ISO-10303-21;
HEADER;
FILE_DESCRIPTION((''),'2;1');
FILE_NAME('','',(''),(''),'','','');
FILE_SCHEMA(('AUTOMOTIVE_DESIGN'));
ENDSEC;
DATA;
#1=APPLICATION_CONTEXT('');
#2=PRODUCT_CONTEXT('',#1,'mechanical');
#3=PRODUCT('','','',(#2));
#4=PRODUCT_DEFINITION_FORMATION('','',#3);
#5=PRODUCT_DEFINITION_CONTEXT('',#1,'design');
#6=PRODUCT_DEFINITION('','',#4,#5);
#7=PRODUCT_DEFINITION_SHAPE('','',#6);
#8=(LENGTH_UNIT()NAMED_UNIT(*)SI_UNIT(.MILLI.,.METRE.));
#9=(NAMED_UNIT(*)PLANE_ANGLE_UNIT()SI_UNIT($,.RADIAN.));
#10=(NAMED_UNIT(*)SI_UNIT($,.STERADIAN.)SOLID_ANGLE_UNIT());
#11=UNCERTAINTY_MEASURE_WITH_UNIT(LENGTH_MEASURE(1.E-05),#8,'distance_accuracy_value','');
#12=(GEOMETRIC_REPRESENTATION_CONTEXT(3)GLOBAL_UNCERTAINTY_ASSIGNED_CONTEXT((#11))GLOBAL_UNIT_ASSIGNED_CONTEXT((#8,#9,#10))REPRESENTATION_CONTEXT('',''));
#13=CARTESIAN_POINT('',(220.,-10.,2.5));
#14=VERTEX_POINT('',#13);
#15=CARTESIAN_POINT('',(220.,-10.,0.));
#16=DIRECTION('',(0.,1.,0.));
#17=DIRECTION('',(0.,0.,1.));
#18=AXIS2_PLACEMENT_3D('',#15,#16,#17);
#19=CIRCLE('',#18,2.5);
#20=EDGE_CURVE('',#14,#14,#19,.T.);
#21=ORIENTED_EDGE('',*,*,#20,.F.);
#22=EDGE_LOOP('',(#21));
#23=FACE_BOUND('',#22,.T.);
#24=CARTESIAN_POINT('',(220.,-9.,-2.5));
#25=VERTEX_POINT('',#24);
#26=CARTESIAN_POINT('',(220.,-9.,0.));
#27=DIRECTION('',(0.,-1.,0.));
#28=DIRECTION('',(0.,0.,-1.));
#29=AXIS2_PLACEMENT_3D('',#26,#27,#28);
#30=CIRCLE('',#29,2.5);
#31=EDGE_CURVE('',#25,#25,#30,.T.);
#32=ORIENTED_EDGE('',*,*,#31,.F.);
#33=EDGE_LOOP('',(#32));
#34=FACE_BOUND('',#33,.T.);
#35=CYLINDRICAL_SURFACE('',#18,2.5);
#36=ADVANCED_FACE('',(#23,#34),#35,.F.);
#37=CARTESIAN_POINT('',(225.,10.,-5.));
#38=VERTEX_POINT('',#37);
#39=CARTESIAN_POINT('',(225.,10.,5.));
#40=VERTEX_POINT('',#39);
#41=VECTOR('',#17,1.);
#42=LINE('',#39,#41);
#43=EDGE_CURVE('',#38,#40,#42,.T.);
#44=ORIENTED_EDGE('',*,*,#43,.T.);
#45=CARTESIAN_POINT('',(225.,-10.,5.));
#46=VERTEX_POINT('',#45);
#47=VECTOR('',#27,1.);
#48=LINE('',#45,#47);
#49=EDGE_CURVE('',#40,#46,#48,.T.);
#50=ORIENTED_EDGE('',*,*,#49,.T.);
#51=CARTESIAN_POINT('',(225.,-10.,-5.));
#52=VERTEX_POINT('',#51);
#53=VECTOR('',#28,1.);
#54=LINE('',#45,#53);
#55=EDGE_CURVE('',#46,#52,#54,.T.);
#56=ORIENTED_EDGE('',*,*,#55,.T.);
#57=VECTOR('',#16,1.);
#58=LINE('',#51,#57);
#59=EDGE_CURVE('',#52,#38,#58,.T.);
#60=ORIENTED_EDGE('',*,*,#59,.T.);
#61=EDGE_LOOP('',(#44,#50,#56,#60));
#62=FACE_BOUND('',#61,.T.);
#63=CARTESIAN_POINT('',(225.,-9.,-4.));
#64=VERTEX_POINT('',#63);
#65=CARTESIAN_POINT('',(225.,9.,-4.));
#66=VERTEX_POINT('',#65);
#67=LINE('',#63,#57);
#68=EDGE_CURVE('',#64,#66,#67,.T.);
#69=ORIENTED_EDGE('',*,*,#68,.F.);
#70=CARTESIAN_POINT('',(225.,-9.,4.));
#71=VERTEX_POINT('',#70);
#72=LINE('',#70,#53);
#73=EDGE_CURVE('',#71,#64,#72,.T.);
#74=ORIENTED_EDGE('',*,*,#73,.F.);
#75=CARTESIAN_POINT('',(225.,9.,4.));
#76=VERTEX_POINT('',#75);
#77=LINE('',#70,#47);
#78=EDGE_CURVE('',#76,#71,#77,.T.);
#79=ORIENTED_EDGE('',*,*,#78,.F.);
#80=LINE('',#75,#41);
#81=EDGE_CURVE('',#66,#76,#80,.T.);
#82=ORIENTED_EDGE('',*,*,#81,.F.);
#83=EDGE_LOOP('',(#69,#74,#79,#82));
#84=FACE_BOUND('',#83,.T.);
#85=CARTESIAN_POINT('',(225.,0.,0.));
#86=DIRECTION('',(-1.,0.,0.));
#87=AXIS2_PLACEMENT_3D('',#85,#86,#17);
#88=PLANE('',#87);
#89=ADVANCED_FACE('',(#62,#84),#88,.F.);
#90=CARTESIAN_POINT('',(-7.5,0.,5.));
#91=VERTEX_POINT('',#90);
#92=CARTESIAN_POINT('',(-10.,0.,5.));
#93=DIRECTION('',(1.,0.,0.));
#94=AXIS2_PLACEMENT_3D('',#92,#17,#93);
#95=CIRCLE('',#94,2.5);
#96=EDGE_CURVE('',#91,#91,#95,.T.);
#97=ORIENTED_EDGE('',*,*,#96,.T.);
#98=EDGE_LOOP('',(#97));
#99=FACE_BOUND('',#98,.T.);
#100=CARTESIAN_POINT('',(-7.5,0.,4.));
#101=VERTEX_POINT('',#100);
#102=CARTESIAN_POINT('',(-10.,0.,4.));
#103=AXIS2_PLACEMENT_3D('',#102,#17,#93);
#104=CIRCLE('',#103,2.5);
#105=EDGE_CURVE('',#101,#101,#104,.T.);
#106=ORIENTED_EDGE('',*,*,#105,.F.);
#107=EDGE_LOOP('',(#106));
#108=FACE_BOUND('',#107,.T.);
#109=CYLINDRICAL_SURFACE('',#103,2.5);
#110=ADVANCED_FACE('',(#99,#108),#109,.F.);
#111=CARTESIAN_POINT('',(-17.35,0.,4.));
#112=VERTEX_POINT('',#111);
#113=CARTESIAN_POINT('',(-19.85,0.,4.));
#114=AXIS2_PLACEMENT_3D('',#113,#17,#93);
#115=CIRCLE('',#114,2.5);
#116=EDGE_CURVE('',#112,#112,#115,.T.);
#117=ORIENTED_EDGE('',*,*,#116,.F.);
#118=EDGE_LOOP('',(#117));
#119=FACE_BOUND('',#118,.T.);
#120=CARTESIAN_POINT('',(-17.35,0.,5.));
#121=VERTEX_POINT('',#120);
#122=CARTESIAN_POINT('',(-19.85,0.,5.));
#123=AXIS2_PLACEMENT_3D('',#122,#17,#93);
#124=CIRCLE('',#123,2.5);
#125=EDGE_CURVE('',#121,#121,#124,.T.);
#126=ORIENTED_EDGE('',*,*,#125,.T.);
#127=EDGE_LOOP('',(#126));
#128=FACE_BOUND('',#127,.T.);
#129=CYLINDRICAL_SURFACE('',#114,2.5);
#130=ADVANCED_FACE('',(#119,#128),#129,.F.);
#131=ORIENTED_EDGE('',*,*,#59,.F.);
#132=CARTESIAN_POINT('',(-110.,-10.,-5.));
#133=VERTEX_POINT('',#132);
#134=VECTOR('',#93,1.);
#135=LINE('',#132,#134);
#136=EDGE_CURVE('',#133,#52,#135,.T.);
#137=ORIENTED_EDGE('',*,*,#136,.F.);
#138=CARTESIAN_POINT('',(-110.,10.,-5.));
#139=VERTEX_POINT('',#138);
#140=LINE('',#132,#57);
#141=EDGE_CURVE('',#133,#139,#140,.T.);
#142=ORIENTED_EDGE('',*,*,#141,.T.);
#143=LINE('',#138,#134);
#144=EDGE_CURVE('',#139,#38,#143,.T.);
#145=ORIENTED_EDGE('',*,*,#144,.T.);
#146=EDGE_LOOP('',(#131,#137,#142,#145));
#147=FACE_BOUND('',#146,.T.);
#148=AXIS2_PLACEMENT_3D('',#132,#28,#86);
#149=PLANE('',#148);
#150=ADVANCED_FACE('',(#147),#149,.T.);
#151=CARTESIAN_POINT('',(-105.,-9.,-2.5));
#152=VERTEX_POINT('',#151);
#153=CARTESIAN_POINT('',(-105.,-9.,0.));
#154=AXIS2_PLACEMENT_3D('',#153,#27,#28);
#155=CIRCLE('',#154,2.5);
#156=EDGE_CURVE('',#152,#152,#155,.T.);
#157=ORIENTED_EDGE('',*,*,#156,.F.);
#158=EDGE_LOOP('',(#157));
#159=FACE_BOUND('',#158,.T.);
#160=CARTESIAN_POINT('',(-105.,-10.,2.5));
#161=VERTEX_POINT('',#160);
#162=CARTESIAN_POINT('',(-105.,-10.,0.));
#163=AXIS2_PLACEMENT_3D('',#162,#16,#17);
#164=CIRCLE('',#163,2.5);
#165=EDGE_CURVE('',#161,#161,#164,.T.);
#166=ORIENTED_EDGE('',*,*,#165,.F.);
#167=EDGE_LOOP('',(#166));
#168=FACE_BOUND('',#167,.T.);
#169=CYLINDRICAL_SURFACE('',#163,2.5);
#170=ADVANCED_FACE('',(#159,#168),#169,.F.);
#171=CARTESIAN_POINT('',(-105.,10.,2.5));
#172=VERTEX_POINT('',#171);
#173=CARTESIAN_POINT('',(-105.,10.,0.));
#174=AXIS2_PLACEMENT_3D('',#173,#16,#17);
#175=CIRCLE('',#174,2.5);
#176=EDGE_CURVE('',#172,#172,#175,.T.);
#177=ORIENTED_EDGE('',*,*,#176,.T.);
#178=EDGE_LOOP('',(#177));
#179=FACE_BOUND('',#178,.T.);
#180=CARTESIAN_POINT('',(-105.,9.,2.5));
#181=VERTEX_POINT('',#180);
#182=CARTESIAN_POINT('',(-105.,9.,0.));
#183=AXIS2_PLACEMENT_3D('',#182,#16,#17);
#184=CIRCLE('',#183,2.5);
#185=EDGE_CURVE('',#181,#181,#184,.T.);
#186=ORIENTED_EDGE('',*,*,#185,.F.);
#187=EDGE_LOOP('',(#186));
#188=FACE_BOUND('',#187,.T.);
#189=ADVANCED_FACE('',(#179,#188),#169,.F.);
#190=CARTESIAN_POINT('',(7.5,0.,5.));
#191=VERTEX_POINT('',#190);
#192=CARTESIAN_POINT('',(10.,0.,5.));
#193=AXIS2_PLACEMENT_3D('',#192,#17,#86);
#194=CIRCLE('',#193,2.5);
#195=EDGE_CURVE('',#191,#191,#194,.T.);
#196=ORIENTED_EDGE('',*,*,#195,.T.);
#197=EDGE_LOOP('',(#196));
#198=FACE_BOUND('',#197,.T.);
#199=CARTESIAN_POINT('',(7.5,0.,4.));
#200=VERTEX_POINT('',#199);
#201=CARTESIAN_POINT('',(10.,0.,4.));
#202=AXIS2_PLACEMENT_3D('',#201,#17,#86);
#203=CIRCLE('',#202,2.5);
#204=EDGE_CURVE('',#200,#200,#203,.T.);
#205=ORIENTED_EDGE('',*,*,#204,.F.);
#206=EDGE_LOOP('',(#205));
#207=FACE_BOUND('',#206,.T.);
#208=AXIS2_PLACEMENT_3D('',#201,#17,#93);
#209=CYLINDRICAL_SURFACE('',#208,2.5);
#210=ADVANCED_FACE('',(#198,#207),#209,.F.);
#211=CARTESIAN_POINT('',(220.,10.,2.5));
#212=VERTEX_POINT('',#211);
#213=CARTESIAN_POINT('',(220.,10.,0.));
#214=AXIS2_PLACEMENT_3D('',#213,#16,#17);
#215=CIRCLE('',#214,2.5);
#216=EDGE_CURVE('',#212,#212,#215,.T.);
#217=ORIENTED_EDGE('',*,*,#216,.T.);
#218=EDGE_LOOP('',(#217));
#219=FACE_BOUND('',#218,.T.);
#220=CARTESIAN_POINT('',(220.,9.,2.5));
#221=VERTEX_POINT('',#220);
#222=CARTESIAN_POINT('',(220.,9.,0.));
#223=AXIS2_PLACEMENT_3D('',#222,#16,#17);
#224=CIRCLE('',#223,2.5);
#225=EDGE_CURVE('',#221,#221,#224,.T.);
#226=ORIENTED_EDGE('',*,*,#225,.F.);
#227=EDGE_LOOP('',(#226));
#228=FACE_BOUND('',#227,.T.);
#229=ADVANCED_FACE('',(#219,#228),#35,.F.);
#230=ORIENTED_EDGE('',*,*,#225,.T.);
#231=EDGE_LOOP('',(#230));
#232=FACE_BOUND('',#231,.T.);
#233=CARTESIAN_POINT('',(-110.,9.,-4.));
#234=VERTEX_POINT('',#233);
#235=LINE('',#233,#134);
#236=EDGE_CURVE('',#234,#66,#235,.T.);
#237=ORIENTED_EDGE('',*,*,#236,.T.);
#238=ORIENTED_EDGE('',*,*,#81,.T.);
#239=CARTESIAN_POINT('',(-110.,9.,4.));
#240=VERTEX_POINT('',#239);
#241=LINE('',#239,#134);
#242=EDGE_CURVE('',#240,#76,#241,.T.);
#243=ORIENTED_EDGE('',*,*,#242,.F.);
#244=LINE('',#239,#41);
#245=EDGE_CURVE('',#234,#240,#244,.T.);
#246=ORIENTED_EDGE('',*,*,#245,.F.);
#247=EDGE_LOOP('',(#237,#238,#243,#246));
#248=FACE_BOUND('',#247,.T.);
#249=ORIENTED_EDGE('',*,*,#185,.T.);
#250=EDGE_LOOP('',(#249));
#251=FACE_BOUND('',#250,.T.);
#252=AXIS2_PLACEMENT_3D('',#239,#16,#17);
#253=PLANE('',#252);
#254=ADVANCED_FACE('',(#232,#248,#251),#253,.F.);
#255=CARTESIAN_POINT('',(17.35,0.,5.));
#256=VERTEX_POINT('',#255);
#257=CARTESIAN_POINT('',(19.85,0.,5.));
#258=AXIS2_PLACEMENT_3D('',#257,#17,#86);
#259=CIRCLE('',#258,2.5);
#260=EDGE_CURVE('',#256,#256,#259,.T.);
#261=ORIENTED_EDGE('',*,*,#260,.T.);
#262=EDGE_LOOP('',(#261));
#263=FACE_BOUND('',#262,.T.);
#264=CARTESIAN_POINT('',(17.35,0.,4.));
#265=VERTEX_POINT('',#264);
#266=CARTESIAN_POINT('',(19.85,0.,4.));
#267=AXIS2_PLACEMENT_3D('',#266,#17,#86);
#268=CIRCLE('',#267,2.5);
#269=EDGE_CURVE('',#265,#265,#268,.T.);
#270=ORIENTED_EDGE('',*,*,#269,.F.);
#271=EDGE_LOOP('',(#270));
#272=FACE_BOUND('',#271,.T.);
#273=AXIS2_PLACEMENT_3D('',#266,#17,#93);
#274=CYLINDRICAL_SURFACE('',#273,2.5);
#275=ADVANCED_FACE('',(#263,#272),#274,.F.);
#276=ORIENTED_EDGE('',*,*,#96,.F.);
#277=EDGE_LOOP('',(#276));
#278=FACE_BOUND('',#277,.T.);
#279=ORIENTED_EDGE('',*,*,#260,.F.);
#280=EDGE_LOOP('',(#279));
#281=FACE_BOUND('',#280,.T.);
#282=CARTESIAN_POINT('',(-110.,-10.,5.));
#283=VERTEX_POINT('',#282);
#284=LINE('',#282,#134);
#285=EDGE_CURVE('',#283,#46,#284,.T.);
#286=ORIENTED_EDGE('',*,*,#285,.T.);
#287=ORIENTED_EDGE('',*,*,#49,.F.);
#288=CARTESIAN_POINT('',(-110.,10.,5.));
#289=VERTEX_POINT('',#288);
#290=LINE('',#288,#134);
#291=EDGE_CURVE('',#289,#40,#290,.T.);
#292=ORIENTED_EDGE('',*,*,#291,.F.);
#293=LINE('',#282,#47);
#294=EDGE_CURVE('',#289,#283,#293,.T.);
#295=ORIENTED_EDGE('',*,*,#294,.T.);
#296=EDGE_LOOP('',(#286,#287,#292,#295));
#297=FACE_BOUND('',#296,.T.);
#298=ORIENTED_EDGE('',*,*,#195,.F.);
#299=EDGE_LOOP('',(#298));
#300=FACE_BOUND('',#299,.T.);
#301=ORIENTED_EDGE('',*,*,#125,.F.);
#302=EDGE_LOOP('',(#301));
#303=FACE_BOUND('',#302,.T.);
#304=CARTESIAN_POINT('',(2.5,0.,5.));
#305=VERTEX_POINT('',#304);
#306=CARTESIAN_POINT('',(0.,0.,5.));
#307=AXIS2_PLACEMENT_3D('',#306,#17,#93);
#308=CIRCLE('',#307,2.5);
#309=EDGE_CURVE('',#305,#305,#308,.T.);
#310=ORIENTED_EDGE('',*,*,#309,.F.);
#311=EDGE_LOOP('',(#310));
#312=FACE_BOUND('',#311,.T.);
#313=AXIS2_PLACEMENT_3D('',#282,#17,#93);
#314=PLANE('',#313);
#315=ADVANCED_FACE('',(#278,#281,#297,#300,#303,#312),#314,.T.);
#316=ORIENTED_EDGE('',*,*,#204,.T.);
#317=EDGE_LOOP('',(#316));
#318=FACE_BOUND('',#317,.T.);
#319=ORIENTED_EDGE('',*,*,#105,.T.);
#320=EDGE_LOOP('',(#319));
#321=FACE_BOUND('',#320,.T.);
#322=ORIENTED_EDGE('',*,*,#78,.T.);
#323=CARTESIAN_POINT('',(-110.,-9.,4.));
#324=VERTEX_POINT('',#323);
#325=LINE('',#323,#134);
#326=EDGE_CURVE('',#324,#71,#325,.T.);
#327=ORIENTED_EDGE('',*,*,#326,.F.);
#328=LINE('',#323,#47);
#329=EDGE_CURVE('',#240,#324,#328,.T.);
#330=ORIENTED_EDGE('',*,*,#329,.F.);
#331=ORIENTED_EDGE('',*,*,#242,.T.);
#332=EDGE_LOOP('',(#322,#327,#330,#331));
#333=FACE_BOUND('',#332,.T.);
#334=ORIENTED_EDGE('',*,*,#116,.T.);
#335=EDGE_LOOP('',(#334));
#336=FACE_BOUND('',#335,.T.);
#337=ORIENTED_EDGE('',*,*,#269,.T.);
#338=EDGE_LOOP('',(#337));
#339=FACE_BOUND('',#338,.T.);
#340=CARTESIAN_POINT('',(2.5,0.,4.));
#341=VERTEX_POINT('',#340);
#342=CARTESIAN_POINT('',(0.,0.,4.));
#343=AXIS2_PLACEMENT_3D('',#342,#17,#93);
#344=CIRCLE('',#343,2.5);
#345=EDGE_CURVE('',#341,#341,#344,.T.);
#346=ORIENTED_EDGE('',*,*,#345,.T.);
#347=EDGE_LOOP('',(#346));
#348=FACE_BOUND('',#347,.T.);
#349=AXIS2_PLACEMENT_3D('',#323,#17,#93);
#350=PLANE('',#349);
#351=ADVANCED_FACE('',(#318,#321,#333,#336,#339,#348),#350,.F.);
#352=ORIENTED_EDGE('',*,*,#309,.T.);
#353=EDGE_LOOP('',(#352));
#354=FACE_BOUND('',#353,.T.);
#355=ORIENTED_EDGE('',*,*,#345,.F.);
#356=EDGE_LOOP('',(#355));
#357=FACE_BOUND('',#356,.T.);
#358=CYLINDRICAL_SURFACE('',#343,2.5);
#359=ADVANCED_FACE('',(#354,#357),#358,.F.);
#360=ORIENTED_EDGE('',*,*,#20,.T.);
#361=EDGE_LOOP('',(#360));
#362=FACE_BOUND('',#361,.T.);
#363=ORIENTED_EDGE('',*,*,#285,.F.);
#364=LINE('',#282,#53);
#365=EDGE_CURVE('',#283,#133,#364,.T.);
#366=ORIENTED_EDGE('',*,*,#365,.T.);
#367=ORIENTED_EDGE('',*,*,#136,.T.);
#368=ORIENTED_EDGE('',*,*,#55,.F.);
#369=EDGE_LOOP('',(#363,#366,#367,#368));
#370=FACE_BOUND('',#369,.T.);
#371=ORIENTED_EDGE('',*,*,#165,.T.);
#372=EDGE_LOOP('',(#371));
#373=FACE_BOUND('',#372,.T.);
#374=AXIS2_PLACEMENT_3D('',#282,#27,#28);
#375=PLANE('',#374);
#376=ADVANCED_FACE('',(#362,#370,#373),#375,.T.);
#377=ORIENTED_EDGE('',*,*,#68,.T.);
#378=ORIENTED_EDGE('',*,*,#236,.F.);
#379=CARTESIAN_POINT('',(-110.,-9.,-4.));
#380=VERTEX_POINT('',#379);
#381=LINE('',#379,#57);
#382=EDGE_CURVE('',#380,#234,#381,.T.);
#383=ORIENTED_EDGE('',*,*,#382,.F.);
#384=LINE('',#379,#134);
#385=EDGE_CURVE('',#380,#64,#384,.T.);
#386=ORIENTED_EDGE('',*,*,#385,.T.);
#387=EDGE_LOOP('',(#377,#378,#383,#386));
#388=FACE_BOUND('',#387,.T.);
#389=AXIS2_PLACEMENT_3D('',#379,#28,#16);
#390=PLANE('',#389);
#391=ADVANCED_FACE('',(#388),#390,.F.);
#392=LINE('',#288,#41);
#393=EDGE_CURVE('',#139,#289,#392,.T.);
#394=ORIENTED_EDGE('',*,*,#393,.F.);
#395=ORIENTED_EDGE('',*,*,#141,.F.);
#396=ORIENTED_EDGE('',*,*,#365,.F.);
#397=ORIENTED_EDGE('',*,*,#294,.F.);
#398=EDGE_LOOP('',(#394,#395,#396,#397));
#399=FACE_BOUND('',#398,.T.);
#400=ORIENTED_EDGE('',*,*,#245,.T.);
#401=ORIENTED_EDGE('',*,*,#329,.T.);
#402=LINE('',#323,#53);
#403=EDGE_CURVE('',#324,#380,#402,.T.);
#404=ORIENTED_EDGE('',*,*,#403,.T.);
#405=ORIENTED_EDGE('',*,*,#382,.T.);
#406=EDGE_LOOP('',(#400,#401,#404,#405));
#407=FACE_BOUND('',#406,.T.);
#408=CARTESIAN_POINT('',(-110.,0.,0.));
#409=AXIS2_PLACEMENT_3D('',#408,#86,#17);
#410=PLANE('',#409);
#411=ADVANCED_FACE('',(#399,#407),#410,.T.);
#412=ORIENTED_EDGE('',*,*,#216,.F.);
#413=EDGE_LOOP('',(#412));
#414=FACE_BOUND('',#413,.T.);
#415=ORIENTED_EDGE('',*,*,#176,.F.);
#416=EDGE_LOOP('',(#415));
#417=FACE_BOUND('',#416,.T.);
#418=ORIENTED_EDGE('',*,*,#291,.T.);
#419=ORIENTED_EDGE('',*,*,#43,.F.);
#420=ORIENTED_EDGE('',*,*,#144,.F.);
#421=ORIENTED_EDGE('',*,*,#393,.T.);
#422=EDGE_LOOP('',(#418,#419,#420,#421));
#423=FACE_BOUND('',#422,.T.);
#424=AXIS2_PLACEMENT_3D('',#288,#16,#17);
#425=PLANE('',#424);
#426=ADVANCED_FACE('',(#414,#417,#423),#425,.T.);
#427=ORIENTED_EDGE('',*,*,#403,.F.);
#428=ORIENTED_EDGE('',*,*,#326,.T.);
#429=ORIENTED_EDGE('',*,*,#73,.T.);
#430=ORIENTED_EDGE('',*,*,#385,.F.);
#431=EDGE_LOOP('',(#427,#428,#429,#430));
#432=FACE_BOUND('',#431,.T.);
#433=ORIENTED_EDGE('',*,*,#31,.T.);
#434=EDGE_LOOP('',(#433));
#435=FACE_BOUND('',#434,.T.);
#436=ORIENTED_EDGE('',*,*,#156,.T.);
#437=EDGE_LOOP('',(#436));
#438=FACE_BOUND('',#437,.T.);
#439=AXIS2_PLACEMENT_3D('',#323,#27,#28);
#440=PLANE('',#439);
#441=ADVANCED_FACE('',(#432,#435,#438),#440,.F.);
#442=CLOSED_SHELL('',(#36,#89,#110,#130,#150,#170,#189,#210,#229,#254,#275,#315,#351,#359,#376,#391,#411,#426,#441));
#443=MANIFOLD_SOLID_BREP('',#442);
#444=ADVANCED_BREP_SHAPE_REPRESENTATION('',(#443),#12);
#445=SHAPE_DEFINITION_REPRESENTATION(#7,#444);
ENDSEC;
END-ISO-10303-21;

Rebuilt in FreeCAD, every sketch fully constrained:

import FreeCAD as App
import Part
import Sketcher
from FreeCAD import Vector

doc = App.newDocument("Part")
params = doc.addObject("Spreadsheet::Sheet", "Params")
for row, (alias, value) in enumerate([
    ("sketch1_width", "20 mm"),
    ("sketch1_width2", "18 mm"),
    ("sketch1_height", "10 mm"),
    ("sketch1_height2", "8 mm"),
    ("pad1_length", "225 mm"),
    ("pad1_length2", "110 mm"),
    ("sketch2_diameter", "5 mm"),
    ("pocket1_length", "1 mm"),
    ("sketch3_diameter", "5 mm"),
    ("pocket2_length", "20 mm"),
], start=1):
    params.set(f"A{row}", alias)
    params.set(f"B{row}", "=" + value)
    params.setAlias(f"B{row}", alias)

body = doc.addObject("PartDesign::Body", "Body")

# Sketch on YZ plane
sketch1 = body.newObject("Sketcher::SketchObject", "Sketch")
sketch1.AttachmentSupport = (doc.getObject("YZ_Plane"), [""])
sketch1.MapMode = "FlatFace"
sketch1.addGeometry(Part.LineSegment(Vector(10, 5, 0), Vector(-10, 5, 0)), False)
sketch1.addGeometry(Part.LineSegment(Vector(-10, 5, 0), Vector(-10, -5, 0)), False)
sketch1.addGeometry(Part.LineSegment(Vector(-10, -5, 0), Vector(10, -5, 0)), False)
sketch1.addGeometry(Part.LineSegment(Vector(10, -5, 0), Vector(10, 5, 0)), False)
sketch1.addGeometry(Part.LineSegment(Vector(-9, -4, 0), Vector(-9, 4, 0)), False)
sketch1.addGeometry(Part.LineSegment(Vector(-9, 4, 0), Vector(9, 4, 0)), False)
sketch1.addGeometry(Part.LineSegment(Vector(9, 4, 0), Vector(9, -4, 0)), False)
sketch1.addGeometry(Part.LineSegment(Vector(9, -4, 0), Vector(-9, -4, 0)), False)
sketch1.addConstraint(Sketcher.Constraint("Coincident", 0, 2, 1, 1))
sketch1.addConstraint(Sketcher.Constraint("Coincident", 1, 2, 2, 1))
sketch1.addConstraint(Sketcher.Constraint("Coincident", 2, 2, 3, 1))
sketch1.addConstraint(Sketcher.Constraint("Coincident", 3, 2, 0, 1))
sketch1.addConstraint(Sketcher.Constraint("Coincident", 4, 2, 5, 1))
sketch1.addConstraint(Sketcher.Constraint("Coincident", 5, 2, 6, 1))
sketch1.addConstraint(Sketcher.Constraint("Coincident", 6, 2, 7, 1))
sketch1.addConstraint(Sketcher.Constraint("Coincident", 7, 2, 4, 1))
sketch1.addConstraint(Sketcher.Constraint("Horizontal", 0))
sketch1.addConstraint(Sketcher.Constraint("Vertical", 1))
sketch1.addConstraint(Sketcher.Constraint("Horizontal", 2))
sketch1.addConstraint(Sketcher.Constraint("Vertical", 3))
sketch1.addConstraint(Sketcher.Constraint("Vertical", 4))
sketch1.addConstraint(Sketcher.Constraint("Horizontal", 5))
sketch1.addConstraint(Sketcher.Constraint("Vertical", 6))
sketch1.addConstraint(Sketcher.Constraint("Horizontal", 7))
sketch1.addConstraint(Sketcher.Constraint("Symmetric", 0, 2, 2, 2, -1, 1))
sketch1.addConstraint(Sketcher.Constraint("Symmetric", 4, 2, 6, 2, -1, 1))
sketch1.addConstraint(Sketcher.Constraint("DistanceX", 0, 2, 0, 1, 20.0))
sketch1.addConstraint(Sketcher.Constraint("DistanceX", 5, 1, 5, 2, 18.0))
sketch1.addConstraint(Sketcher.Constraint("DistanceY", 1, 2, 1, 1, 10.0))
sketch1.addConstraint(Sketcher.Constraint("DistanceY", 4, 1, 4, 2, 8.0))
sketch1.setExpression("Constraints[18]", "Params.sketch1_width")
sketch1.setExpression("Constraints[19]", "Params.sketch1_width2")
sketch1.setExpression("Constraints[20]", "Params.sketch1_height")
sketch1.setExpression("Constraints[21]", "Params.sketch1_height2")
pad1 = body.newObject("PartDesign::Pad", "Pad")
pad1.Profile = sketch1
pad1.Type = "TwoLengths"
pad1.setExpression("Length", "Params.pad1_length")
pad1.setExpression("Length2", "Params.pad1_length2")

# Sketch on XY plane
sketch2 = body.newObject("Sketcher::SketchObject", "Sketch001")
sketch2.AttachmentSupport = (doc.getObject("XY_Plane"), [""])
sketch2.MapMode = "FlatFace"
sketch2.AttachmentOffset = App.Placement(Vector(0, 0, 5), App.Rotation())
sketch2.addGeometry(Part.Circle(Vector(-19.85, 0, 0), Vector(0, 0, 1), 2.5), False)
sketch2.addGeometry(Part.Circle(Vector(-10, 0, 0), Vector(0, 0, 1), 2.5), False)
sketch2.addGeometry(Part.Circle(Vector(0, 0, 0), Vector(0, 0, 1), 2.5), False)
sketch2.addGeometry(Part.Circle(Vector(19.85, 0, 0), Vector(0, 0, 1), 2.5), False)
sketch2.addGeometry(Part.Circle(Vector(10, 0, 0), Vector(0, 0, 1), 2.5), False)
sketch2.addConstraint(Sketcher.Constraint("Coincident", 2, 3, -1, 1))
sketch2.addConstraint(Sketcher.Constraint("Equal", 0, 1))
sketch2.addConstraint(Sketcher.Constraint("Equal", 1, 2))
sketch2.addConstraint(Sketcher.Constraint("Equal", 2, 3))
sketch2.addConstraint(Sketcher.Constraint("Equal", 3, 4))
sketch2.addConstraint(Sketcher.Constraint("Symmetric", 0, 3, 3, 3, -1, 1))
sketch2.addConstraint(Sketcher.Constraint("Symmetric", 1, 3, 4, 3, -1, 1))
sketch2.addConstraint(Sketcher.Constraint("PointOnObject", 0, 3, -1))
sketch2.addConstraint(Sketcher.Constraint("PointOnObject", 1, 3, -1))
sketch2.addConstraint(Sketcher.Constraint("Diameter", 0, 5.0))
sketch2.addConstraint(Sketcher.Constraint("DistanceX", 1, 3, -1, 1, 10.0))
sketch2.addConstraint(Sketcher.Constraint("DistanceX", 0, 3, 3, 3, 39.7))
sketch2.setExpression("Constraints[9]", "Params.sketch2_diameter")
pocket1 = body.newObject("PartDesign::Pocket", "Pocket")
pocket1.Profile = sketch2
pocket1.setExpression("Length", "Params.pocket1_length")

# Sketch on XZ plane
sketch3 = body.newObject("Sketcher::SketchObject", "Sketch002")
sketch3.AttachmentSupport = (doc.getObject("XZ_Plane"), [""])
sketch3.MapMode = "FlatFace"
sketch3.AttachmentOffset = App.Placement(Vector(0, 0, -10), App.Rotation())
sketch3.addGeometry(Part.Circle(Vector(220, 0, 0), Vector(0, 0, 1), 2.5), False)
sketch3.addGeometry(Part.Circle(Vector(-105, 0, 0), Vector(0, 0, 1), 2.5), False)
sketch3.addConstraint(Sketcher.Constraint("Equal", 0, 1))
sketch3.addConstraint(Sketcher.Constraint("PointOnObject", 0, 3, -1))
sketch3.addConstraint(Sketcher.Constraint("PointOnObject", 1, 3, -1))
sketch3.addConstraint(Sketcher.Constraint("Diameter", 0, 5.0))
sketch3.addConstraint(Sketcher.Constraint("DistanceX", -1, 1, 0, 3, 220.0))
sketch3.addConstraint(Sketcher.Constraint("DistanceX", 1, 3, -1, 1, 105.0))
sketch3.setExpression("Constraints[3]", "Params.sketch3_diameter")
pocket2 = body.newObject("PartDesign::Pocket", "Pocket001")
pocket2.Profile = sketch3
pocket2.setExpression("Length", "Params.pocket2_length")
pocket2.Reversed = True

doc.recompute()
